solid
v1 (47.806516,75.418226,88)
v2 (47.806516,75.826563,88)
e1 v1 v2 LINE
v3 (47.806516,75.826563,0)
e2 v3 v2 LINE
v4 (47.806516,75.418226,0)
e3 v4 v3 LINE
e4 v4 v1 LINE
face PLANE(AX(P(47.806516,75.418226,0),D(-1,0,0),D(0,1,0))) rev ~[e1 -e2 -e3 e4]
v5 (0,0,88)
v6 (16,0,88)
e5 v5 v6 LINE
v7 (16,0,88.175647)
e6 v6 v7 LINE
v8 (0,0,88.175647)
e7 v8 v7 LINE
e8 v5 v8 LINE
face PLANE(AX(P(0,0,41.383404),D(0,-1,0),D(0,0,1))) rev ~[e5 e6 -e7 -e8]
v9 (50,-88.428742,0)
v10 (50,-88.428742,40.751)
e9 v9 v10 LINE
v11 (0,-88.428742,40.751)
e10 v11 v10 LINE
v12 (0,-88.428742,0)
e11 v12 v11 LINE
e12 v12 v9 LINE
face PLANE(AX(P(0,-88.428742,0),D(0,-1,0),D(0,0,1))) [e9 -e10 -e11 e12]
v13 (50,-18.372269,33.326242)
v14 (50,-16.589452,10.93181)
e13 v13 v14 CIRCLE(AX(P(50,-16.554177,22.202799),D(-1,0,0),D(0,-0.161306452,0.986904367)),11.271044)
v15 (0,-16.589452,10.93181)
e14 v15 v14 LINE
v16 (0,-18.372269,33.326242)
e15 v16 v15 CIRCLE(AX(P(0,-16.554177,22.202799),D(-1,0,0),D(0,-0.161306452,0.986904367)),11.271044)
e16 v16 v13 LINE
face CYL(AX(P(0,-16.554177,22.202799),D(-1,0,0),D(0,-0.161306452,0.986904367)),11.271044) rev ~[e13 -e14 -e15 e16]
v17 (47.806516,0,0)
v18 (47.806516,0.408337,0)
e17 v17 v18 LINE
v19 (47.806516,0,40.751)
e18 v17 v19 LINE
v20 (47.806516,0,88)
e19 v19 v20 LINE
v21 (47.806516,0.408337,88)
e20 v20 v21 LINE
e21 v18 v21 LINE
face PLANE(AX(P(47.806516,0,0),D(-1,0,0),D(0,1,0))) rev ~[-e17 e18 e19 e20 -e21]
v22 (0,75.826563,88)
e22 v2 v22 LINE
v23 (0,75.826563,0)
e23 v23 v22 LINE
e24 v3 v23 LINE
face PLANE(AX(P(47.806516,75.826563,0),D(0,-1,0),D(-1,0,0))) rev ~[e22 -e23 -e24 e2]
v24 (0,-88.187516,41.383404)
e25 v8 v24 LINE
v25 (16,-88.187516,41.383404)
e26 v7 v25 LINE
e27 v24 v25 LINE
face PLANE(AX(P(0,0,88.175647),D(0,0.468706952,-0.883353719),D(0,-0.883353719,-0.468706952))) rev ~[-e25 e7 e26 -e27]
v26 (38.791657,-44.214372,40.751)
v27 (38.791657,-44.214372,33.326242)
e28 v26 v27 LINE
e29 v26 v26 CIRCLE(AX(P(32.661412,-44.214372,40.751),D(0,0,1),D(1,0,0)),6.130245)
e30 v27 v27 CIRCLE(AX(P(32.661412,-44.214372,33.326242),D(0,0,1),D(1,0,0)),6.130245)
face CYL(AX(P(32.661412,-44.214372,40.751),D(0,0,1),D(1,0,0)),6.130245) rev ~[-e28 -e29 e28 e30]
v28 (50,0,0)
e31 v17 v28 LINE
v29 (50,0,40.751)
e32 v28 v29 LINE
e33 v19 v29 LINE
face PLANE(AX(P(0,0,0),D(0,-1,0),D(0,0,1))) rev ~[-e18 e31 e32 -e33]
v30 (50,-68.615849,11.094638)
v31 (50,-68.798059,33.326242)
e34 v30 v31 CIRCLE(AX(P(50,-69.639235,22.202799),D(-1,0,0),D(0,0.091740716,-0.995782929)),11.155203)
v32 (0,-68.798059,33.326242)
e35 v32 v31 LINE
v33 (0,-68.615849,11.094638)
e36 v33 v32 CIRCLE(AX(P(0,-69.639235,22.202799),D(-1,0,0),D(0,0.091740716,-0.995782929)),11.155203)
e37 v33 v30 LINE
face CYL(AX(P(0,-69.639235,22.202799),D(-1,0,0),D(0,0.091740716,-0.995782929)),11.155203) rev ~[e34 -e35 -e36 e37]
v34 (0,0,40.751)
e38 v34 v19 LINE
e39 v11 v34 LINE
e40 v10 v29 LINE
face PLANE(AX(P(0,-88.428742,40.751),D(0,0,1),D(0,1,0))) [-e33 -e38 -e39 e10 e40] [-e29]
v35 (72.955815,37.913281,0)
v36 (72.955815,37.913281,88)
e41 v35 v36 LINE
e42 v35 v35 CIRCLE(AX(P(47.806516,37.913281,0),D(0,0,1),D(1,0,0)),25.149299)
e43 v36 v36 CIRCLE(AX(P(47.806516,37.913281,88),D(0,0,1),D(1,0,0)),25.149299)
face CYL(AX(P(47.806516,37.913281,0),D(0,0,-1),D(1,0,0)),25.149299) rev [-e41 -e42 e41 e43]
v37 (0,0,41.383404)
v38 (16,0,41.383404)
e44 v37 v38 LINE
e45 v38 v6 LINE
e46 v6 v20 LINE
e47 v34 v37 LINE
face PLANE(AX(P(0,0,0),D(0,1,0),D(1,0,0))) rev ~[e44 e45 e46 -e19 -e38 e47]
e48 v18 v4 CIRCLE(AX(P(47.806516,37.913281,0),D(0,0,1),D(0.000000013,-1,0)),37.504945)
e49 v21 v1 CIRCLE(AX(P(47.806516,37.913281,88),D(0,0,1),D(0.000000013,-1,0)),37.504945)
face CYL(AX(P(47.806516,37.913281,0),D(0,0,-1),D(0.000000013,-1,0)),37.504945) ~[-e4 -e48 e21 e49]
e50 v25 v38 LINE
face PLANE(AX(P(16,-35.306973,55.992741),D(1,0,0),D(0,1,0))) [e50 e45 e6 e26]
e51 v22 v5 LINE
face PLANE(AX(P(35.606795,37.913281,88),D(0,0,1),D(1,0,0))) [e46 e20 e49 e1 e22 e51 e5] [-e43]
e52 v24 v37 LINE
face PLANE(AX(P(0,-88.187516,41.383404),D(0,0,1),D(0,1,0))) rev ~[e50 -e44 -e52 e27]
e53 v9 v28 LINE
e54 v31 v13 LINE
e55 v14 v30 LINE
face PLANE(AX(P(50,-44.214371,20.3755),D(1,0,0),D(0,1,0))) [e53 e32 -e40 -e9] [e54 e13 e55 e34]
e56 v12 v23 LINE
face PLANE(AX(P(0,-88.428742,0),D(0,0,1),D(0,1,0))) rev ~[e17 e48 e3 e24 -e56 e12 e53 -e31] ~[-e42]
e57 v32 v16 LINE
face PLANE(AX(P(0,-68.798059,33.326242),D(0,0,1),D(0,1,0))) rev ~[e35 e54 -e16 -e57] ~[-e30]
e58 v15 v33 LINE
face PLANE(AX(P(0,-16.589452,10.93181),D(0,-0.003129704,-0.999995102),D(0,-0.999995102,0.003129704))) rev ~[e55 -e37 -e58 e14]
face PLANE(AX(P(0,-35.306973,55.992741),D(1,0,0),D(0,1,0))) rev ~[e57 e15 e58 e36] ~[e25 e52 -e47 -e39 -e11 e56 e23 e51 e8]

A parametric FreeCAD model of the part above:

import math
import FreeCAD as App
import Part
import Sketcher

V = App.Vector
Q = App.Units.Quantity

doc = App.newDocument("Part")
params = doc.addObject("Spreadsheet::Sheet", "Params")
for row, (alias, value) in enumerate([
    ("pad1_length", "88 mm"),
    ("pad2_length", "50 mm"),
    ("pad3_length", "16 mm"),
    ("pocket1_length", "7.424758 mm"),
], start=1):
    params.set(f"A{row}", alias)
    params.set(f"B{row}", "=" + value)
    params.setAlias(f"B{row}", alias)

body = doc.addObject("PartDesign::Body", "Body")

# Sketch on XY plane
sketch1 = doc.addObject("Sketcher::SketchObject", "Sketch")
body.addObject(sketch1)
sketch1.AttachmentSupport = (doc.XY_Plane, [""])
sketch1.MapMode = "FlatFace"
sketch1.addGeometry(Part.LineSegment(V(0, 75.83, 0), V(0, 0, 0)), False)
sketch1.addGeometry(Part.LineSegment(V(0, 0, 0), V(47.81, 0, 0)), False)
sketch1.addGeometry(Part.LineSegment(V(47.81, 0, 0), V(47.81, 0.41, 0)), False)
sketch1.addGeometry(Part.ArcOfCircle(Part.Circle(V(47.81, 37.91, 0), V(0, 0, 1), 37.5), math.radians(-90), math.radians(90)), False)
sketch1.addGeometry(Part.LineSegment(V(47.81, 75.42, 0), V(47.81, 75.83, 0)), False)
sketch1.addGeometry(Part.LineSegment(V(47.81, 75.83, 0), V(0, 75.83, 0)), False)
sketch1.addGeometry(Part.Circle(V(47.81, 37.91, 0), V(0, 0, 1), 25.15), False)
sketch1.addConstraint(Sketcher.Constraint("Coincident", 0, 2, 1, 1))
sketch1.addConstraint(Sketcher.Constraint("Coincident", 1, 2, 2, 1))
sketch1.addConstraint(Sketcher.Constraint("Coincident", 2, 2, 3, 1))
sketch1.addConstraint(Sketcher.Constraint("Coincident", 3, 2, 4, 1))
sketch1.addConstraint(Sketcher.Constraint("Coincident", 4, 2, 5, 1))
sketch1.addConstraint(Sketcher.Constraint("Coincident", 5, 2, 0, 1))
sketch1.addConstraint(Sketcher.Constraint("Vertical", 0))
sketch1.addConstraint(Sketcher.Constraint("Horizontal", 1))
sketch1.addConstraint(Sketcher.Constraint("Vertical", 2))
sketch1.addConstraint(Sketcher.Constraint("Vertical", 4))
sketch1.addConstraint(Sketcher.Constraint("Horizontal", 5))
sketch1.addConstraint(Sketcher.Constraint("Coincident", 0, 2, -1, 1))
sketch1.addConstraint(Sketcher.Constraint("Coincident", 6, 3, 3, 3))
sketch1.addConstraint(Sketcher.Constraint("Vertical", 6, 3, 1, 2))
sketch1.addConstraint(Sketcher.Constraint("Vertical", 2, 2, 3, 2))
sketch1.addConstraint(Sketcher.Constraint("Equal", 2, 4))
sketch1.addConstraint(Sketcher.Constraint("Diameter", 6, Q("50.298598 mm")))
sketch1.addConstraint(Sketcher.Constraint("Radius", 3, Q("37.504945 mm")))
sketch1.addConstraint(Sketcher.Constraint("DistanceX", 1, 1, 1, 2, Q("47.806516 mm")))
sketch1.addConstraint(Sketcher.Constraint("DistanceY", 0, 2, 0, 1, Q("75.826563 mm")))
pad1 = doc.addObject("PartDesign::Pad", "Pad")
body.addObject(pad1)
pad1.Profile = sketch1
pad1.setExpression("Length", "Params.pad1_length")

# Sketch on YZ plane
sketch2 = doc.addObject("Sketcher::SketchObject", "Sketch001")
body.addObject(sketch2)
sketch2.AttachmentSupport = (doc.YZ_Plane, [""])
sketch2.MapMode = "FlatFace"
sketch2.addGeometry(Part.LineSegment(V(-88, 41, 0), V(-88, 0, 0)), False)
sketch2.addGeometry(Part.LineSegment(V(-88, 0, 0), V(0, 0, 0)), False)
sketch2.addGeometry(Part.LineSegment(V(0, 0, 0), V(0, 41, 0)), False)
sketch2.addGeometry(Part.LineSegment(V(0, 41, 0), V(-88, 41, 0)), False)
sketch2.addGeometry(Part.LineSegment(V(-69, 33, 0), V(-18, 33, 0)), False)
sketch2.addGeometry(Part.ArcOfCircle(Part.Circle(V(-17, 22, 0), V(0, 0, 1), 11), math.radians(-90), math.radians(99)), False)
sketch2.addGeometry(Part.LineSegment(V(-17, 11, 0), V(-69, 11, 0)), False)
sketch2.addGeometry(Part.ArcOfCircle(Part.Circle(V(-70, 22, 0), V(0, 0, 1), 11), math.radians(86), math.radians(275)), False)
sketch2.addConstraint(Sketcher.Constraint("Coincident", 0, 2, 1, 1))
sketch2.addConstraint(Sketcher.Constraint("Coincident", 1, 2, 2, 1))
sketch2.addConstraint(Sketcher.Constraint("Coincident", 2, 2, 3, 1))
sketch2.addConstraint(Sketcher.Constraint("Coincident", 3, 2, 0, 1))
sketch2.addConstraint(Sketcher.Constraint("Coincident", 4, 2, 5, 2))
sketch2.addConstraint(Sketcher.Constraint("Tangent", 5, 1, 6, 1))
sketch2.addConstraint(Sketcher.Constraint("Coincident", 6, 2, 7, 2))
sketch2.addConstraint(Sketcher.Constraint("Coincident", 7, 1, 4, 1))
sketch2.addConstraint(Sketcher.Constraint("Vertical", 0))
sketch2.addConstraint(Sketcher.Constraint("Horizontal", 1))
sketch2.addConstraint(Sketcher.Constraint("Vertical", 2))
sketch2.addConstraint(Sketcher.Constraint("Horizontal", 3))
sketch2.addConstraint(Sketcher.Constraint("Horizontal", 4))
sketch2.addConstraint(Sketcher.Constraint("Coincident", 1, 2, -1, 1))
sketch2.addConstraint(Sketcher.Constraint("Horizontal", 5, 3, 7, 3))
sketch2.addConstraint(Sketcher.Constraint("DistanceY", 0, 2, 0, 1, Q("40.751 mm")))
sketch2.addConstraint(Sketcher.Constraint("Radius", 5, Q("11.271044 mm")))
sketch2.addConstraint(Sketcher.Constraint("Radius", 7, Q("11.155203 mm")))
sketch2.addConstraint(Sketcher.Constraint("DistanceX", 4, 1, 4, 2, Q("50.42579 mm")))
sketch2.addConstraint(Sketcher.Constraint("DistanceY", -1, 1, 5, 3, Q("22.202799 mm")))
sketch2.addConstraint(Sketcher.Constraint("Distance", 6, Q("52.026652 mm")))
sketch2.addConstraint(Sketcher.Constraint("DistanceX", 1, 1, 1, 2, Q("88.428743 mm")))
sketch2.addConstraint(Sketcher.Constraint("DistanceX", 4, 2, -1, 1, Q("18.372269 mm")))
sketch2.addConstraint(Sketcher.Constraint("DistanceX", 6, 2, -1, 1, Q("68.615849 mm")))
pad2 = doc.addObject("PartDesign::Pad", "Pad001")
body.addObject(pad2)
pad2.Profile = sketch2
pad2.setExpression("Length", "Params.pad2_length")

# Sketch on YZ plane
sketch3 = doc.addObject("Sketcher::SketchObject", "Sketch002")
body.addObject(sketch3)
sketch3.AttachmentSupport = (doc.YZ_Plane, [""])
sketch3.MapMode = "FlatFace"
sketch3.addGeometry(Part.LineSegment(V(-88, 41, 0), V(0, 41, 0)), False)
sketch3.addGeometry(Part.LineSegment(V(0, 41, 0), V(0, 88, 0)), False)
sketch3.addGeometry(Part.LineSegment(V(0, 88, 0), V(-88, 41, 0)), False)
sketch3.addConstraint(Sketcher.Constraint("Coincident", 0, 2, 1, 1))
sketch3.addConstraint(Sketcher.Constraint("Coincident", 1, 2, 2, 1))
sketch3.addConstraint(Sketcher.Constraint("Coincident", 2, 2, 0, 1))
sketch3.addConstraint(Sketcher.Constraint("Horizontal", 0))
sketch3.addConstraint(Sketcher.Constraint("Vertical", 1))
sketch3.addConstraint(Sketcher.Constraint("PointOnObject", 0, 2, -2))
sketch3.addConstraint(Sketcher.Constraint("Distance", 2, Q("99.83262 mm")))
sketch3.addConstraint(Sketcher.Constraint("DistanceX", 0, 1, 0, 2, Q("88.187516 mm")))
sketch3.addConstraint(Sketcher.Constraint("DistanceY", -1, 1, 0, 2, Q("41.383404 mm")))
pad3 = doc.addObject("PartDesign::Pad", "Pad002")
body.addObject(pad3)
pad3.Profile = sketch3
pad3.setExpression("Length", "Params.pad3_length")

# Sketch on XY plane
sketch4 = doc.addObject("Sketcher::SketchObject", "Sketch003")
body.addObject(sketch4)
sketch4.AttachmentSupport = (doc.XY_Plane, [""])
sketch4.MapMode = "FlatFace"
sketch4.AttachmentOffset = App.Placement(V(0, 0, 40.751), App.Rotation())
sketch4.addGeometry(Part.Circle(V(33, -44, 0), V(0, 0, 1), 6), False)
sketch4.addConstraint(Sketcher.Constraint("Diameter", 0, Q("12.26049 mm")))
sketch4.addConstraint(Sketcher.Constraint("DistanceY", 0, 3, -1, 1, Q("44.214372 mm")))
sketch4.addConstraint(Sketcher.Constraint("DistanceX", -1, 1, 0, 3, Q("32.661412 mm")))
pocket1 = doc.addObject("PartDesign::Pocket", "Pocket")
body.addObject(pocket1)
pocket1.Profile = sketch4
pocket1.setExpression("Length", "Params.pocket1_length")

doc.recompute()
